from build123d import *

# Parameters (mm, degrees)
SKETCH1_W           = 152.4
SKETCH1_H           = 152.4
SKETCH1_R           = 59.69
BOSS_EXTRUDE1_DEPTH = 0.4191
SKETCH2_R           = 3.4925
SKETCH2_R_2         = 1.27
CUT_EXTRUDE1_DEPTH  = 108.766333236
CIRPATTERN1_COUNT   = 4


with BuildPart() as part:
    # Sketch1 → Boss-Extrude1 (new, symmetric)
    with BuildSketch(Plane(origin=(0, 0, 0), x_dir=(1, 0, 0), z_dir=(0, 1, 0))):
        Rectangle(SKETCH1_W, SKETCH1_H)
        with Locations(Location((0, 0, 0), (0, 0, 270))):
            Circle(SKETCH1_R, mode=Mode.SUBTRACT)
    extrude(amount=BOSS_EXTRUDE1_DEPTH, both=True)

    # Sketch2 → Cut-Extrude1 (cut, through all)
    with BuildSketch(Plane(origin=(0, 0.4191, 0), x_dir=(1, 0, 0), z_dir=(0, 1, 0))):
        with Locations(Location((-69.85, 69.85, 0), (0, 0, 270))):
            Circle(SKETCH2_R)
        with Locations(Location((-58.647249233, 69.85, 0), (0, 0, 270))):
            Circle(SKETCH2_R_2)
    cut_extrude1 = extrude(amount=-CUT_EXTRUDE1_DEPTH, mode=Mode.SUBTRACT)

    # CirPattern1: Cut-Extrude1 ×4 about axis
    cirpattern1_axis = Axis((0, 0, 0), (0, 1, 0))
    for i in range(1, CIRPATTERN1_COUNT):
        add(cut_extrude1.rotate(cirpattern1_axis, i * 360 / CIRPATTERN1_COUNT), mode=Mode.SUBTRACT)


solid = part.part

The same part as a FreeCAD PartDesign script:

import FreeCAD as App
import Part
import Sketcher
Q = App.Units.Quantity

doc = App.newDocument("Part")
body = doc.addObject("PartDesign::Body", "Body")

sketch1 = body.newObject("Sketcher::SketchObject", "Sketch")
sketch1.AttachmentSupport = (doc.getObject("XZ_Plane"), [""])
sketch1.MapMode = "FlatFace"
sketch1.addGeometry([
    Part.LineSegment(App.Vector(-76, -76, 0), App.Vector(-76, 76, 0)),
    Part.LineSegment(App.Vector(-76, 76, 0), App.Vector(76, 76, 0)),
    Part.LineSegment(App.Vector(76, 76, 0), App.Vector(76, -76, 0)),
    Part.LineSegment(App.Vector(76, -76, 0), App.Vector(-76, -76, 0)),
    Part.Circle(App.Vector(0, 0, 0), App.Vector(0, 0, 1), 60),
], False)
sketch1.addConstraint([
    Sketcher.Constraint("Coincident", 0, 2, 1, 1),
    Sketcher.Constraint("Coincident", 1, 2, 2, 1),
    Sketcher.Constraint("Coincident", 2, 2, 3, 1),
    Sketcher.Constraint("Coincident", 3, 2, 0, 1),
    Sketcher.Constraint("Vertical", 0),
    Sketcher.Constraint("Horizontal", 1),
    Sketcher.Constraint("Vertical", 2),
    Sketcher.Constraint("Horizontal", 3),
    Sketcher.Constraint("Coincident", 4, 3, -1, 1),
    Sketcher.Constraint("Symmetric", 0, 2, 2, 2, -1, 1),
    Sketcher.Constraint("Equal", 3, 0),
    Sketcher.Constraint("Diameter", 4, Q("4.7 in")),
    Sketcher.Constraint("DistanceX", 1, 1, 1, 2, Q("6 in")),
])
pad1 = body.newObject("PartDesign::Pad", "Pad")
pad1.Profile = sketch1
pad1.Length = Q("0.033 in")
pad1.Midplane = True

sketch2 = body.newObject("Sketcher::SketchObject", "Sketch001")
sketch2.AttachmentSupport = (doc.getObject("XZ_Plane"), [""])
sketch2.MapMode = "FlatFace"
sketch2.AttachmentOffset = App.Placement(App.Vector(0, 0, -0.0165 * 25.4), App.Rotation())
sketch2.addGeometry([
    Part.Circle(App.Vector(-69.8, -69.8, 0), App.Vector(0, 0, 1), 3.5),
    Part.Circle(App.Vector(-58.6, -69.8, 0), App.Vector(0, 0, 1), 1.3),
], False)
sketch2.addConstraint([
    Sketcher.Constraint("Horizontal", 0, 3, 1, 3),
    Sketcher.Constraint("Diameter", 1, Q("0.1 in")),
    Sketcher.Constraint("Diameter", 0, Q("0.275 in")),
    Sketcher.Constraint("DistanceX", 0, 3, -1, 1, Q("2.75 in")),
    Sketcher.Constraint("DistanceY", 0, 3, -1, 1, Q("2.75 in")),
    Sketcher.Constraint("DistanceX", 1, 3, -1, 1, 58.647249),
])
pocket1 = body.newObject("PartDesign::Pocket", "Pocket")
pocket1.Profile = sketch2
pocket1.Type = "ThroughAll"
pocket1.Reversed = True
doc.recompute()

polarpattern = body.newObject("PartDesign::PolarPattern", "PolarPattern")
polarpattern.Originals = [pocket1]
polarpattern.Axis = (doc.getObject("Y_Axis"), [""])
polarpattern.Angle = 360
polarpattern.Occurrences = 4
body.Tip = polarpattern

doc.recompute()
